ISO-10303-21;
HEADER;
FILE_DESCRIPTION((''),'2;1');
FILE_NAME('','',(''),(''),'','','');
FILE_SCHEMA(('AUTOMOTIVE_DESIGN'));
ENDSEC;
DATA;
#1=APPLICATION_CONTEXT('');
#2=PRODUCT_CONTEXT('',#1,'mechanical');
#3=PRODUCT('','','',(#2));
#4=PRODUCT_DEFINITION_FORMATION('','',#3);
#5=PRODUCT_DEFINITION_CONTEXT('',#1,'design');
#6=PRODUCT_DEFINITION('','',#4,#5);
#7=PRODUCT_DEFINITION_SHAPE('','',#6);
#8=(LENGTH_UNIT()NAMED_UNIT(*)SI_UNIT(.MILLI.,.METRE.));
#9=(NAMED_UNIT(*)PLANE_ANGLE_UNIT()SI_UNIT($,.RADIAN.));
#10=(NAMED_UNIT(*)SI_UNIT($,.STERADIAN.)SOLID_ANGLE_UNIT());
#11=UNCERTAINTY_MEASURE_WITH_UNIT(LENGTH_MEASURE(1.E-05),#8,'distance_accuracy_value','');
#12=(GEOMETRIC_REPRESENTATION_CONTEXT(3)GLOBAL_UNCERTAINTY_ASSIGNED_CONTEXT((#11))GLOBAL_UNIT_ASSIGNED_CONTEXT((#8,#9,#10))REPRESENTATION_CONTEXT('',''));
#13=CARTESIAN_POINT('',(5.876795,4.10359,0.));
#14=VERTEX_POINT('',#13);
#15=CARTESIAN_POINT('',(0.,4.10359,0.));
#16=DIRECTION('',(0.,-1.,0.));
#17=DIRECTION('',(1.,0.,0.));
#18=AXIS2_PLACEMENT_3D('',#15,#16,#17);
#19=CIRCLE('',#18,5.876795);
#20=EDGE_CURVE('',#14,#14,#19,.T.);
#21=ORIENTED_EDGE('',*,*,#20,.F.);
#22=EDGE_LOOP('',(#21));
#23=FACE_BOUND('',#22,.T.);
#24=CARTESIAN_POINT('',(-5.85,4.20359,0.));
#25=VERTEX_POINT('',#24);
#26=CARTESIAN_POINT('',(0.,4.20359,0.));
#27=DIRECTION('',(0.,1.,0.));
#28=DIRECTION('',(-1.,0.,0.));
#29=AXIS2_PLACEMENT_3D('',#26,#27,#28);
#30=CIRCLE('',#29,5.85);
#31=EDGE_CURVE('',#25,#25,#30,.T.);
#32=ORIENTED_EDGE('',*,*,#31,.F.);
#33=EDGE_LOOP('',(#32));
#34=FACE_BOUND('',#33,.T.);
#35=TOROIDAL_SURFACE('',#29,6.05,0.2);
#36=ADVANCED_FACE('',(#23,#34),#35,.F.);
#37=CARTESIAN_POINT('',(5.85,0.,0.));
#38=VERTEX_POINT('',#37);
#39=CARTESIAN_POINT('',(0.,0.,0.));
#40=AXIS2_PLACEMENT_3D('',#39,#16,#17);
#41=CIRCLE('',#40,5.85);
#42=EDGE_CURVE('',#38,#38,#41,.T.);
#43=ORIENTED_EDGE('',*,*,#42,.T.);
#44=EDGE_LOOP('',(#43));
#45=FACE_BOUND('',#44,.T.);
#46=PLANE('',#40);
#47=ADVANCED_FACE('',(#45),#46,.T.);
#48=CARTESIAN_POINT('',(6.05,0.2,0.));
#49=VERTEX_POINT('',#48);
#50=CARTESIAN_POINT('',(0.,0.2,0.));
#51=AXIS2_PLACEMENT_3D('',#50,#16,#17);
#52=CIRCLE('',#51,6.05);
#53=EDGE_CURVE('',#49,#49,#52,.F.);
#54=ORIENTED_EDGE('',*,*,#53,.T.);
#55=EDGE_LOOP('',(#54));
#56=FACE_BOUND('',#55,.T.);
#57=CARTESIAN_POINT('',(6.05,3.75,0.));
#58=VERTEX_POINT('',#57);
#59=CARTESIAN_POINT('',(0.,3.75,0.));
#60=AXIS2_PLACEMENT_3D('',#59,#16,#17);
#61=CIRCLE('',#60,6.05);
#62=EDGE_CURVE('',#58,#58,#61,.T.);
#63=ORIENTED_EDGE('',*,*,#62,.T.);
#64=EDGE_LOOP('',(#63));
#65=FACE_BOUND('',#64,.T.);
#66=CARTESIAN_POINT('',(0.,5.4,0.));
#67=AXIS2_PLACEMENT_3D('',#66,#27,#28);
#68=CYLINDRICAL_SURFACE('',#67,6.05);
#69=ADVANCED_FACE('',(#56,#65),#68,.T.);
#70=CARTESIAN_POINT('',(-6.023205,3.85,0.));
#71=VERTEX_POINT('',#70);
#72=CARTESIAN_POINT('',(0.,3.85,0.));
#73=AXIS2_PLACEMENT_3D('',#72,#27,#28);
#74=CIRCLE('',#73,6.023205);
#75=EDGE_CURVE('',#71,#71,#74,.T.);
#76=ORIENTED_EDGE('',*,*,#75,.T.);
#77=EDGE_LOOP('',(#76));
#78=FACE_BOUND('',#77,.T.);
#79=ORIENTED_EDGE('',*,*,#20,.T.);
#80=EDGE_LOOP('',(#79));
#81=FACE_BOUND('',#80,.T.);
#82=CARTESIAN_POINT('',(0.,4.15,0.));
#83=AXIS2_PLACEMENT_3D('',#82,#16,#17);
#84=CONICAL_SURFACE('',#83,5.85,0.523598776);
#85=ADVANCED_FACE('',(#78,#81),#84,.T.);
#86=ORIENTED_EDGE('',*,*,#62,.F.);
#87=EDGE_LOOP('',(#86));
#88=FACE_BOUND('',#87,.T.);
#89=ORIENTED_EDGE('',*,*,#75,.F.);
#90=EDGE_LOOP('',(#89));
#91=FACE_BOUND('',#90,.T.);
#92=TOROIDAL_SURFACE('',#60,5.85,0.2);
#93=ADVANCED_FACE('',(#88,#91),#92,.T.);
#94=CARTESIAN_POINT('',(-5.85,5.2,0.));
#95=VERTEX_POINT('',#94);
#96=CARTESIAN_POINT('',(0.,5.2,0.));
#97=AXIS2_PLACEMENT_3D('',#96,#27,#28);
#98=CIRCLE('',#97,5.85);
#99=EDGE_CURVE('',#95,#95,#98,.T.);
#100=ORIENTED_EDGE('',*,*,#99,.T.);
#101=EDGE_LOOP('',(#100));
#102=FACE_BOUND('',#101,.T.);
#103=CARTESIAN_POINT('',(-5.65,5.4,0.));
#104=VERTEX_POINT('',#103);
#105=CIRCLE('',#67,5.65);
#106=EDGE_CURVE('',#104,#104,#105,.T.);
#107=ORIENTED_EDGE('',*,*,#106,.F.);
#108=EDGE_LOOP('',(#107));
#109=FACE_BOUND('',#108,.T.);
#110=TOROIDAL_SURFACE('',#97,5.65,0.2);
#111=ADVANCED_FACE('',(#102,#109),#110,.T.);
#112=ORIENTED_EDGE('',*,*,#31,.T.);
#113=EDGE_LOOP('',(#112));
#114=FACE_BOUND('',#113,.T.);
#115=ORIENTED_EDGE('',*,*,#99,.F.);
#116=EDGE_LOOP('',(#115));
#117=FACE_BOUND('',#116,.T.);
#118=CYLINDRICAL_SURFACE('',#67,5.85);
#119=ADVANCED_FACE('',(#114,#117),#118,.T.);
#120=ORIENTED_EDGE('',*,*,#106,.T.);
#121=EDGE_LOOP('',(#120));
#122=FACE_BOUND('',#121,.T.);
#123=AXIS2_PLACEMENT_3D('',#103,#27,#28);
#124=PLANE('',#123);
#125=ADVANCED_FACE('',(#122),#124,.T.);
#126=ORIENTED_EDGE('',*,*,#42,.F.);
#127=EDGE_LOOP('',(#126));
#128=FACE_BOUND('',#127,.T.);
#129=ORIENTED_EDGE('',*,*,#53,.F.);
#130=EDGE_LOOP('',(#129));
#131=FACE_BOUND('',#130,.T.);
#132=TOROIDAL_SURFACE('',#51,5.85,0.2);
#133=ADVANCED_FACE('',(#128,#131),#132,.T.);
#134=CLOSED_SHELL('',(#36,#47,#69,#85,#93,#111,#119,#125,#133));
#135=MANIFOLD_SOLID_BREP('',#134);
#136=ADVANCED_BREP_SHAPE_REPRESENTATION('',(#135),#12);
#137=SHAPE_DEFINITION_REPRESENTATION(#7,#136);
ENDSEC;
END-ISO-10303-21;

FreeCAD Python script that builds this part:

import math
import FreeCAD as App
import Part
import Sketcher

V = App.Vector
Q = App.Units.Quantity


def edges_at(feature, points):
    """Names of the edges that pass closest to the given points."""
    edges = feature.Shape.Edges
    near = lambda p: min(range(len(edges)), key=lambda i: edges[i].distToShape(Part.Vertex(*p))[0])
    return sorted({f"Edge{near(p) + 1}" for p in points})

doc = App.newDocument("Part")
params = doc.addObject("Spreadsheet::Sheet", "Params")
for row, (alias, value) in enumerate([
    ("sketch1_radius", "0.2 mm"),
    ("sketch1_height", "5.4 mm"),
    ("sketch1_length", "0.4 mm"),
    ("sketch1_width", "6.05 mm"),
    ("sketch1_height2", "1.05 mm"),
    ("revolution_angle", "360 deg"),
    ("fillet_radius", "0.2 mm"),
    ("fillet2_radius", "0.2 mm"),
], start=1):
    params.set(f"A{row}", alias)
    params.set(f"B{row}", "=" + value)
    params.setAlias(f"B{row}", alias)

body = doc.addObject("PartDesign::Body", "Body")

# Sketch on XY plane
sketch1 = body.newObject("Sketcher::SketchObject", "Sketch")
sketch1.AttachmentSupport = (doc.getObject("XY_Plane"), [""])
sketch1.MapMode = "FlatFace"
sketch1.addGeometry([
    Part.LineSegment(V(-6.05, 0, 0), V(0, 0, 0)),  # 0
    Part.LineSegment(V(0, 0, 0), V(0, 5.4, 0)),  # 1
    Part.LineSegment(V(0, 5.4, 0), V(-5.65, 5.4, 0)),  # 2
    Part.ArcOfCircle(Part.Circle(V(-5.65, 5.2, 0), V(0, 0, 1), 0.2), math.radians(90), math.radians(180)),  # 3
    Part.LineSegment(V(-5.85, 5.2, 0), V(-5.85, 4.15, 0)),  # 4
    Part.LineSegment(V(-5.85, 4.15, 0), V(-6.05, 3.80359, 0)),  # 5
    Part.LineSegment(V(-6.05, 3.80359, 0), V(-6.05, 0, 0)),  # 6
], False)
sketch1.addConstraint([
    Sketcher.Constraint("Coincident", 0, 2, 1, 1),
    Sketcher.Constraint("Coincident", 1, 2, 2, 1),
    Sketcher.Constraint("Tangent", 2, 2, 3, 1),
    Sketcher.Constraint("Tangent", 3, 2, 4, 1),
    Sketcher.Constraint("Coincident", 4, 2, 5, 1),
    Sketcher.Constraint("Coincident", 5, 2, 6, 1),
    Sketcher.Constraint("Coincident", 6, 2, 0, 1),
    Sketcher.Constraint("Horizontal", 0),
    Sketcher.Constraint("Vertical", 1),
    Sketcher.Constraint("Horizontal", 2),
    Sketcher.Constraint("Vertical", 4),
    Sketcher.Constraint("Vertical", 6),
    Sketcher.Constraint("Coincident", 0, 2, -1, 1),
    Sketcher.Constraint("Radius", 3, Q("0.2 mm")),
    Sketcher.Constraint("Angle", 5, Q("-120 deg")),
    Sketcher.Constraint("DistanceY", 1, 1, 1, 2, Q("5.4 mm")),
    Sketcher.Constraint("Distance", 5, Q("0.4 mm")),
    Sketcher.Constraint("DistanceX", 0, 1, 0, 2, Q("6.05 mm")),
    Sketcher.Constraint("DistanceY", 4, 2, 4, 1, Q("1.05 mm")),
])
sketch1.setExpression("Constraints[13]", "Params.sketch1_radius")
sketch1.setExpression("Constraints[15]", "Params.sketch1_height")
sketch1.setExpression("Constraints[16]", "Params.sketch1_length")
sketch1.setExpression("Constraints[17]", "Params.sketch1_width")
sketch1.setExpression("Constraints[18]", "Params.sketch1_height2")
revolution = body.newObject("PartDesign::Revolution", "Revolution")
revolution.Profile = sketch1
revolution.ReferenceAxis = (sketch1, ["V_Axis"])
revolution.setExpression("Angle", "Params.revolution_angle")
doc.recompute()

fillet = body.newObject("PartDesign::Fillet", "Fillet")
fillet.Base = (revolution, edges_at(revolution, [(6.05, 0, 0)]))
fillet.setExpression("Radius", "Params.fillet_radius")
doc.recompute()

fillet2 = body.newObject("PartDesign::Fillet", "Fillet001")
fillet2.Base = (fillet, edges_at(fillet, [(5.85, 4.15, 0), (6.05, 3.804, 0)]))
fillet2.setExpression("Radius", "Params.fillet2_radius")

doc.recompute()
